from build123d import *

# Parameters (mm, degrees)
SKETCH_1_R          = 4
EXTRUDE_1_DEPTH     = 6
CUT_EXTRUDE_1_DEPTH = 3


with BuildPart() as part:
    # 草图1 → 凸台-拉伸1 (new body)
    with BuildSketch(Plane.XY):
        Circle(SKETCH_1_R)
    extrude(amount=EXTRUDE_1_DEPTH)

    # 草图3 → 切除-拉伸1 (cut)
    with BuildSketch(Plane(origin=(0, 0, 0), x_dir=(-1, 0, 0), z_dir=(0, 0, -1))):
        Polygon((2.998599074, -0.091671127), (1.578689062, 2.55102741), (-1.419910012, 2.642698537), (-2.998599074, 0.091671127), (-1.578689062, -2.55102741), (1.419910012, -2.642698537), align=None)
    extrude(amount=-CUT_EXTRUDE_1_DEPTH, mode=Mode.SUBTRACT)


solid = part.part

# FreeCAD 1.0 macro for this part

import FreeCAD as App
import Part
import Sketcher
from FreeCAD import Vector

doc = App.newDocument("Part")
body = doc.addObject("PartDesign::Body", "Body")

# Sketch on XY plane
sketch1 = doc.addObject("Sketcher::SketchObject", "Sketch")
body.addObject(sketch1)
sketch1.AttachmentSupport = (doc.XY_Plane, [""])
sketch1.MapMode = "FlatFace"
sketch1.addGeometry(Part.Circle(Vector(0, 0, 0), Vector(0, 0, 1), 4), False)
sketch1.addConstraint(Sketcher.Constraint("Coincident", 0, 3, -1, 1))
sketch1.addConstraint(Sketcher.Constraint("Diameter", 0, 8.0))
pad1 = doc.addObject("PartDesign::Pad", "Pad")
body.addObject(pad1)
pad1.Profile = sketch1
pad1.Length = 6

# Sketch on XY plane
sketch2 = doc.addObject("Sketcher::SketchObject", "Sketch001")
body.addObject(sketch2)
sketch2.AttachmentSupport = (doc.XY_Plane, [""])
sketch2.MapMode = "FlatFace"
sketch2.addGeometry(Part.LineSegment(Vector(-3, -0.1, 0), Vector(-1.6, 2.6, 0)), False)
sketch2.addGeometry(Part.LineSegment(Vector(-1.6, 2.6, 0), Vector(1.4, 2.6, 0)), False)
sketch2.addGeometry(Part.LineSegment(Vector(1.4, 2.6, 0), Vector(3, 0.1, 0)), False)
sketch2.addGeometry(Part.LineSegment(Vector(3, 0.1, 0), Vector(1.6, -2.6, 0)), False)
sketch2.addGeometry(Part.LineSegment(Vector(1.6, -2.6, 0), Vector(-1.4, -2.6, 0)), False)
sketch2.addGeometry(Part.LineSegment(Vector(-1.4, -2.6, 0), Vector(-3, -0.1, 0)), False)
sketch2.addConstraint(Sketcher.Constraint("Coincident", 0, 2, 1, 1))
sketch2.addConstraint(Sketcher.Constraint("Coincident", 1, 2, 2, 1))
sketch2.addConstraint(Sketcher.Constraint("Coincident", 2, 2, 3, 1))
sketch2.addConstraint(Sketcher.Constraint("Coincident", 3, 2, 4, 1))
sketch2.addConstraint(Sketcher.Constraint("Coincident", 4, 2, 5, 1))
sketch2.addConstraint(Sketcher.Constraint("Coincident", 5, 2, 0, 1))
sketch2.addConstraint(Sketcher.Constraint("Symmetric", 0, 2, 3, 2, -1, 1))
sketch2.addConstraint(Sketcher.Constraint("Symmetric", 1, 2, 4, 2, -1, 1))
sketch2.addConstraint(Sketcher.Constraint("Symmetric", 2, 2, 5, 2, -1, 1))
sketch2.addConstraint(Sketcher.Constraint("Equal", 0, 1))
sketch2.addConstraint(Sketcher.Constraint("Equal", 1, 2))
sketch2.addConstraint(Sketcher.Constraint("Distance", 0, 3.0))
sketch2.addConstraint(Sketcher.Constraint("DistanceY", -1, 1, 1, 2, 2.642699))
sketch2.addConstraint(Sketcher.Constraint("DistanceX", -1, 1, 2, 2, 2.998599))
sketch2.addConstraint(Sketcher.Constraint("DistanceY", 3, 2, 2, 2, 2.642699))
pocket1 = doc.addObject("PartDesign::Pocket", "Pocket")
body.addObject(pocket1)
pocket1.Profile = sketch2
pocket1.Length = 3
pocket1.Reversed = True

doc.recompute()
